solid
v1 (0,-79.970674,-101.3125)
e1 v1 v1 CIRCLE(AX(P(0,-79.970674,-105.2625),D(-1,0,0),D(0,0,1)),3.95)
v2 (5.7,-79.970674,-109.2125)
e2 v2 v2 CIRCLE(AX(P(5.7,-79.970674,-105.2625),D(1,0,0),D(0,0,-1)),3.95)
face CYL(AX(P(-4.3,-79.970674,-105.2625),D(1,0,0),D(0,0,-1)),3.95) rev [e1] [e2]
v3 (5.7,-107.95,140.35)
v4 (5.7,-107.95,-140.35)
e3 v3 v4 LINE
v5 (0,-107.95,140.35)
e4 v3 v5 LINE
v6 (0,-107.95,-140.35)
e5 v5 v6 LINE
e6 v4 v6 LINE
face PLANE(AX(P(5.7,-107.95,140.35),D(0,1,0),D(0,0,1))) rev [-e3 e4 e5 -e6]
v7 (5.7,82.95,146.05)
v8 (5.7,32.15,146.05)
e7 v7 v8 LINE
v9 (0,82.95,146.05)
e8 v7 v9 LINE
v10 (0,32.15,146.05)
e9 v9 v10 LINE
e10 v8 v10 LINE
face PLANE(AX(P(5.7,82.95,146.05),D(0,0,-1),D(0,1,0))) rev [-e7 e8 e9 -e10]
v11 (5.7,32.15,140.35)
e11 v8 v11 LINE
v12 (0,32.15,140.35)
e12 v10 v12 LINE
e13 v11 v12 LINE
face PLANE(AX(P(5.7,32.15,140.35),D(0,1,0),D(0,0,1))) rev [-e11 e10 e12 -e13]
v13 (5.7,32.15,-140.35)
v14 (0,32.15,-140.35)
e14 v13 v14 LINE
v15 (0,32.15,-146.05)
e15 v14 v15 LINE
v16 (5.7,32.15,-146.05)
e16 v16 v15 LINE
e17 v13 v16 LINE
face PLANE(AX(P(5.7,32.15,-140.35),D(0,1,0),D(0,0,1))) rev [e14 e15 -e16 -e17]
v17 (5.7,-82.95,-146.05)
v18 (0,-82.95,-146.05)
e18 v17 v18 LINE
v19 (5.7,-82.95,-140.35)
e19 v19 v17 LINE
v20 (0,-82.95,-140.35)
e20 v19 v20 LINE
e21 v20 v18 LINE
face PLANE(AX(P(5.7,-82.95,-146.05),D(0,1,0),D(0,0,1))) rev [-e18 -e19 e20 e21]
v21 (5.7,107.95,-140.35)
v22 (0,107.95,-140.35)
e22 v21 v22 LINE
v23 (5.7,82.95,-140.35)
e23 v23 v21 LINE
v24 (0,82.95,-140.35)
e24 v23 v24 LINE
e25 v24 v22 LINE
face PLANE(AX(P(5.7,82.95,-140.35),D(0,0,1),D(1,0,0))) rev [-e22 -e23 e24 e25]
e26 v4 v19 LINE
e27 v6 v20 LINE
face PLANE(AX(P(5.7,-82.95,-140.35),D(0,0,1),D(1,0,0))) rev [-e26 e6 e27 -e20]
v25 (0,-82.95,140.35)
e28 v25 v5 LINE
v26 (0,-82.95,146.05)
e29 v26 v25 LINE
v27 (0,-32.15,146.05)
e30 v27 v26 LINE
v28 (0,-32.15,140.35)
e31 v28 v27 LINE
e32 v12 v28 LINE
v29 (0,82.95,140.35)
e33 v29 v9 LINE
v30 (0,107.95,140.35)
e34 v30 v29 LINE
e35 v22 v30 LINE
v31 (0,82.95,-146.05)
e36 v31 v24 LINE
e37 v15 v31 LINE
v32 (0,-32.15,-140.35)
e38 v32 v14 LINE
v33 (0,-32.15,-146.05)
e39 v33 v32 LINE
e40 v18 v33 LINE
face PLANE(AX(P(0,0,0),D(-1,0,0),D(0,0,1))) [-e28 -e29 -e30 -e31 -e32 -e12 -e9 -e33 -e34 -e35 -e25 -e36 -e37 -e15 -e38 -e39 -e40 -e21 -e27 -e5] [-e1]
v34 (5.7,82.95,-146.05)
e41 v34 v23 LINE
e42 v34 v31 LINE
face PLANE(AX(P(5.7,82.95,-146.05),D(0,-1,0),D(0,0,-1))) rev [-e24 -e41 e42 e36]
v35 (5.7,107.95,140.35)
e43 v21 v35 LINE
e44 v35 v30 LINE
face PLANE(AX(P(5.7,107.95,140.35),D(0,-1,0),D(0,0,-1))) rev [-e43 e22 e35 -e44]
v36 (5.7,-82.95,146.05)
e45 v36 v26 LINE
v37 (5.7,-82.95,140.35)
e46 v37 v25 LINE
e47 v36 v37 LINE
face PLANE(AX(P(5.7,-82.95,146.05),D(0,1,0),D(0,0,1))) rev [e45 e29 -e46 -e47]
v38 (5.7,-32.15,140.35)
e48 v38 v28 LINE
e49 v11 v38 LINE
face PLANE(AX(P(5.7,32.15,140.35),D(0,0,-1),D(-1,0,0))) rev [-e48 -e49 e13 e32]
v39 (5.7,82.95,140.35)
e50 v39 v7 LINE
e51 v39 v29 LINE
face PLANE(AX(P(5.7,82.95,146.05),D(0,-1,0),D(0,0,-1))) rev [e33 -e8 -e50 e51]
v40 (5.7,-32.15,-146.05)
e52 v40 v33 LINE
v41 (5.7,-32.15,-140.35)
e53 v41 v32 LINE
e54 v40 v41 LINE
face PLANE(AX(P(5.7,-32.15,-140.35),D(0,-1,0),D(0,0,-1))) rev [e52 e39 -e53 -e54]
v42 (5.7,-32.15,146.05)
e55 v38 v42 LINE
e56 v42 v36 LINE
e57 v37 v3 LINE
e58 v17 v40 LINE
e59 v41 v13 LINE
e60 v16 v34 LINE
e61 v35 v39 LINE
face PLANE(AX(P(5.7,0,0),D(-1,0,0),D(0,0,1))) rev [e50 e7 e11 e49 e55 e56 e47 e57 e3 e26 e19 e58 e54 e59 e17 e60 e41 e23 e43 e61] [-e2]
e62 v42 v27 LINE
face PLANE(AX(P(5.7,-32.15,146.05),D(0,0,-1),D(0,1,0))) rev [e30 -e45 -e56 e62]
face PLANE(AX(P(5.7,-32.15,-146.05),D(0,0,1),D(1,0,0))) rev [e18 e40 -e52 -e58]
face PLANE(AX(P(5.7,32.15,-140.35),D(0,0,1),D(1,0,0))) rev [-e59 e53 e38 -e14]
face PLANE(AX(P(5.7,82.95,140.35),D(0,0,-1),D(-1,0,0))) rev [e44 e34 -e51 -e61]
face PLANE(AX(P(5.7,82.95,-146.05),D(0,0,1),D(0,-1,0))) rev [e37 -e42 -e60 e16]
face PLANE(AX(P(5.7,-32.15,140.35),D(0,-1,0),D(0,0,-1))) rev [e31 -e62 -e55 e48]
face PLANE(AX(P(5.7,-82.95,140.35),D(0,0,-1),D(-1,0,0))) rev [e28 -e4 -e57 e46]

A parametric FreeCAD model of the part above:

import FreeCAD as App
import Part
import Sketcher
from FreeCAD import Vector

doc = App.newDocument("Part")
params = doc.addObject("Spreadsheet::Sheet", "Params")
for row, (alias, value) in enumerate([
    ("sketch1_width", "25 mm"),
    ("sketch1_width2", "50.8 mm"),
    ("sketch1_width3", "64.3 mm"),
    ("sketch1_height", "5.7 mm"),
    ("sketch1_height2", "280.7 mm"),
    ("pad1_length", "5.7 mm"),
    ("sketch2_diameter", "7.9 mm"),
    ("pocket1_length", "10 mm"),
], start=1):
    params.set(f"A{row}", alias)
    params.set(f"B{row}", "=" + value)
    params.setAlias(f"B{row}", alias)

body = doc.addObject("PartDesign::Body", "Body")

# Sketch on YZ plane
sketch1 = body.newObject("Sketcher::SketchObject", "Sketch")
sketch1.AttachmentSupport = (doc.getObject("YZ_Plane"), [""])
sketch1.MapMode = "FlatFace"
sketch1.addGeometry([
    Part.LineSegment(Vector(108, 140, 0), Vector(83, 140, 0)),  # 0
    Part.LineSegment(Vector(83, 140, 0), Vector(83, 146, 0)),  # 1
    Part.LineSegment(Vector(83, 146, 0), Vector(32, 146, 0)),  # 2
    Part.LineSegment(Vector(32, 146, 0), Vector(32, 140, 0)),  # 3
    Part.LineSegment(Vector(32, 140, 0), Vector(-32, 140, 0)),  # 4
    Part.LineSegment(Vector(-32, 140, 0), Vector(-32, 146, 0)),  # 5
    Part.LineSegment(Vector(-32, 146, 0), Vector(-83, 146, 0)),  # 6
    Part.LineSegment(Vector(-83, 146, 0), Vector(-83, 140, 0)),  # 7
    Part.LineSegment(Vector(-83, 140, 0), Vector(-108, 140, 0)),  # 8
    Part.LineSegment(Vector(-108, 140, 0), Vector(-108, -140, 0)),  # 9
    Part.LineSegment(Vector(-108, -140, 0), Vector(-83, -140, 0)),  # 10
    Part.LineSegment(Vector(-83, -140, 0), Vector(-83, -146, 0)),  # 11
    Part.LineSegment(Vector(-83, -146, 0), Vector(-32, -146, 0)),  # 12
    Part.LineSegment(Vector(-32, -146, 0), Vector(-32, -140, 0)),  # 13
    Part.LineSegment(Vector(-32, -140, 0), Vector(32, -140, 0)),  # 14
    Part.LineSegment(Vector(32, -140, 0), Vector(32, -146, 0)),  # 15
    Part.LineSegment(Vector(32, -146, 0), Vector(83, -146, 0)),  # 16
    Part.LineSegment(Vector(83, -146, 0), Vector(83, -140, 0)),  # 17
    Part.LineSegment(Vector(83, -140, 0), Vector(108, -140, 0)),  # 18
    Part.LineSegment(Vector(108, -140, 0), Vector(108, 140, 0)),  # 19
], False)
sketch1.addConstraint([
    Sketcher.Constraint("Coincident", 0, 2, 1, 1),
    Sketcher.Constraint("Coincident", 1, 2, 2, 1),
    Sketcher.Constraint("Coincident", 2, 2, 3, 1),
    Sketcher.Constraint("Coincident", 3, 2, 4, 1),
    Sketcher.Constraint("Coincident", 4, 2, 5, 1),
    Sketcher.Constraint("Coincident", 5, 2, 6, 1),
    Sketcher.Constraint("Coincident", 6, 2, 7, 1),
    Sketcher.Constraint("Coincident", 7, 2, 8, 1),
    Sketcher.Constraint("Coincident", 8, 2, 9, 1),
    Sketcher.Constraint("Coincident", 9, 2, 10, 1),
    Sketcher.Constraint("Coincident", 10, 2, 11, 1),
    Sketcher.Constraint("Coincident", 11, 2, 12, 1),
    Sketcher.Constraint("Coincident", 12, 2, 13, 1),
    Sketcher.Constraint("Coincident", 13, 2, 14, 1),
    Sketcher.Constraint("Coincident", 14, 2, 15, 1),
    Sketcher.Constraint("Coincident", 15, 2, 16, 1),
    Sketcher.Constraint("Coincident", 16, 2, 17, 1),
    Sketcher.Constraint("Coincident", 17, 2, 18, 1),
    Sketcher.Constraint("Coincident", 18, 2, 19, 1),
    Sketcher.Constraint("Coincident", 19, 2, 0, 1),
    Sketcher.Constraint("Horizontal", 0),
    Sketcher.Constraint("Vertical", 1),
    Sketcher.Constraint("Horizontal", 2),
    Sketcher.Constraint("Vertical", 3),
    Sketcher.Constraint("Horizontal", 4),
    Sketcher.Constraint("Vertical", 5),
    Sketcher.Constraint("Horizontal", 6),
    Sketcher.Constraint("Vertical", 7),
    Sketcher.Constraint("Horizontal", 8),
    Sketcher.Constraint("Vertical", 9),
    Sketcher.Constraint("Horizontal", 10),
    Sketcher.Constraint("Vertical", 11),
    Sketcher.Constraint("Horizontal", 12),
    Sketcher.Constraint("Vertical", 13),
    Sketcher.Constraint("Horizontal", 14),
    Sketcher.Constraint("Vertical", 15),
    Sketcher.Constraint("Horizontal", 16),
    Sketcher.Constraint("Vertical", 17),
    Sketcher.Constraint("Horizontal", 18),
    Sketcher.Constraint("Vertical", 19),
    Sketcher.Constraint("Symmetric", 0, 2, 10, 2, -1, 1),
    Sketcher.Constraint("Symmetric", 2, 2, 12, 2, -1, 1),
    Sketcher.Constraint("Symmetric", 4, 2, 14, 2, -1, 1),
    Sketcher.Constraint("Symmetric", 6, 2, 16, 2, -1, 1),
    Sketcher.Constraint("Symmetric", 8, 2, 18, 2, -1, 1),
    Sketcher.Constraint("Symmetric", 2, 2, 5, 2, -2),
    Sketcher.Constraint("Symmetric", 0, 2, 7, 2, -2),
    Sketcher.Constraint("Horizontal", 0, 2, 3, 2),
    Sketcher.Constraint("DistanceX", 0, 2, 0, 1, 25.0),
    Sketcher.Constraint("DistanceX", 2, 2, 2, 1, 50.8),
    Sketcher.Constraint("DistanceX", 4, 2, 4, 1, 64.3),
    Sketcher.Constraint("DistanceY", 1, 1, 1, 2, 5.7),
    Sketcher.Constraint("DistanceY", 9, 2, 9, 1, 280.7),
])
sketch1.setExpression("Constraints[48]", "Params.sketch1_width")
sketch1.setExpression("Constraints[49]", "Params.sketch1_width2")
sketch1.setExpression("Constraints[50]", "Params.sketch1_width3")
sketch1.setExpression("Constraints[51]", "Params.sketch1_height")
sketch1.setExpression("Constraints[52]", "Params.sketch1_height2")
pad1 = body.newObject("PartDesign::Pad", "Pad")
pad1.Profile = sketch1
pad1.setExpression("Length", "Params.pad1_length")

# Sketch on YZ plane
sketch2 = body.newObject("Sketcher::SketchObject", "Sketch001")
sketch2.AttachmentSupport = (doc.getObject("YZ_Plane"), [""])
sketch2.MapMode = "FlatFace"
sketch2.AttachmentOffset = App.Placement(Vector(0, 0, 5.7), App.Rotation())
sketch2.addGeometry(Part.Circle(Vector(-80, -105.3, 0), Vector(0, 0, 1), 4), False)
sketch2.addConstraint([
    Sketcher.Constraint("Diameter", 0, 7.9),
    Sketcher.Constraint("DistanceY", 0, 3, -1, 1, 105.2625),
    Sketcher.Constraint("DistanceX", 0, 3, -1, 1, 79.970674),
])
sketch2.setExpression("Constraints[0]", "Params.sketch2_diameter")
pocket1 = body.newObject("PartDesign::Pocket", "Pocket")
pocket1.Profile = sketch2
pocket1.setExpression("Length", "Params.pocket1_length")

doc.recompute()
